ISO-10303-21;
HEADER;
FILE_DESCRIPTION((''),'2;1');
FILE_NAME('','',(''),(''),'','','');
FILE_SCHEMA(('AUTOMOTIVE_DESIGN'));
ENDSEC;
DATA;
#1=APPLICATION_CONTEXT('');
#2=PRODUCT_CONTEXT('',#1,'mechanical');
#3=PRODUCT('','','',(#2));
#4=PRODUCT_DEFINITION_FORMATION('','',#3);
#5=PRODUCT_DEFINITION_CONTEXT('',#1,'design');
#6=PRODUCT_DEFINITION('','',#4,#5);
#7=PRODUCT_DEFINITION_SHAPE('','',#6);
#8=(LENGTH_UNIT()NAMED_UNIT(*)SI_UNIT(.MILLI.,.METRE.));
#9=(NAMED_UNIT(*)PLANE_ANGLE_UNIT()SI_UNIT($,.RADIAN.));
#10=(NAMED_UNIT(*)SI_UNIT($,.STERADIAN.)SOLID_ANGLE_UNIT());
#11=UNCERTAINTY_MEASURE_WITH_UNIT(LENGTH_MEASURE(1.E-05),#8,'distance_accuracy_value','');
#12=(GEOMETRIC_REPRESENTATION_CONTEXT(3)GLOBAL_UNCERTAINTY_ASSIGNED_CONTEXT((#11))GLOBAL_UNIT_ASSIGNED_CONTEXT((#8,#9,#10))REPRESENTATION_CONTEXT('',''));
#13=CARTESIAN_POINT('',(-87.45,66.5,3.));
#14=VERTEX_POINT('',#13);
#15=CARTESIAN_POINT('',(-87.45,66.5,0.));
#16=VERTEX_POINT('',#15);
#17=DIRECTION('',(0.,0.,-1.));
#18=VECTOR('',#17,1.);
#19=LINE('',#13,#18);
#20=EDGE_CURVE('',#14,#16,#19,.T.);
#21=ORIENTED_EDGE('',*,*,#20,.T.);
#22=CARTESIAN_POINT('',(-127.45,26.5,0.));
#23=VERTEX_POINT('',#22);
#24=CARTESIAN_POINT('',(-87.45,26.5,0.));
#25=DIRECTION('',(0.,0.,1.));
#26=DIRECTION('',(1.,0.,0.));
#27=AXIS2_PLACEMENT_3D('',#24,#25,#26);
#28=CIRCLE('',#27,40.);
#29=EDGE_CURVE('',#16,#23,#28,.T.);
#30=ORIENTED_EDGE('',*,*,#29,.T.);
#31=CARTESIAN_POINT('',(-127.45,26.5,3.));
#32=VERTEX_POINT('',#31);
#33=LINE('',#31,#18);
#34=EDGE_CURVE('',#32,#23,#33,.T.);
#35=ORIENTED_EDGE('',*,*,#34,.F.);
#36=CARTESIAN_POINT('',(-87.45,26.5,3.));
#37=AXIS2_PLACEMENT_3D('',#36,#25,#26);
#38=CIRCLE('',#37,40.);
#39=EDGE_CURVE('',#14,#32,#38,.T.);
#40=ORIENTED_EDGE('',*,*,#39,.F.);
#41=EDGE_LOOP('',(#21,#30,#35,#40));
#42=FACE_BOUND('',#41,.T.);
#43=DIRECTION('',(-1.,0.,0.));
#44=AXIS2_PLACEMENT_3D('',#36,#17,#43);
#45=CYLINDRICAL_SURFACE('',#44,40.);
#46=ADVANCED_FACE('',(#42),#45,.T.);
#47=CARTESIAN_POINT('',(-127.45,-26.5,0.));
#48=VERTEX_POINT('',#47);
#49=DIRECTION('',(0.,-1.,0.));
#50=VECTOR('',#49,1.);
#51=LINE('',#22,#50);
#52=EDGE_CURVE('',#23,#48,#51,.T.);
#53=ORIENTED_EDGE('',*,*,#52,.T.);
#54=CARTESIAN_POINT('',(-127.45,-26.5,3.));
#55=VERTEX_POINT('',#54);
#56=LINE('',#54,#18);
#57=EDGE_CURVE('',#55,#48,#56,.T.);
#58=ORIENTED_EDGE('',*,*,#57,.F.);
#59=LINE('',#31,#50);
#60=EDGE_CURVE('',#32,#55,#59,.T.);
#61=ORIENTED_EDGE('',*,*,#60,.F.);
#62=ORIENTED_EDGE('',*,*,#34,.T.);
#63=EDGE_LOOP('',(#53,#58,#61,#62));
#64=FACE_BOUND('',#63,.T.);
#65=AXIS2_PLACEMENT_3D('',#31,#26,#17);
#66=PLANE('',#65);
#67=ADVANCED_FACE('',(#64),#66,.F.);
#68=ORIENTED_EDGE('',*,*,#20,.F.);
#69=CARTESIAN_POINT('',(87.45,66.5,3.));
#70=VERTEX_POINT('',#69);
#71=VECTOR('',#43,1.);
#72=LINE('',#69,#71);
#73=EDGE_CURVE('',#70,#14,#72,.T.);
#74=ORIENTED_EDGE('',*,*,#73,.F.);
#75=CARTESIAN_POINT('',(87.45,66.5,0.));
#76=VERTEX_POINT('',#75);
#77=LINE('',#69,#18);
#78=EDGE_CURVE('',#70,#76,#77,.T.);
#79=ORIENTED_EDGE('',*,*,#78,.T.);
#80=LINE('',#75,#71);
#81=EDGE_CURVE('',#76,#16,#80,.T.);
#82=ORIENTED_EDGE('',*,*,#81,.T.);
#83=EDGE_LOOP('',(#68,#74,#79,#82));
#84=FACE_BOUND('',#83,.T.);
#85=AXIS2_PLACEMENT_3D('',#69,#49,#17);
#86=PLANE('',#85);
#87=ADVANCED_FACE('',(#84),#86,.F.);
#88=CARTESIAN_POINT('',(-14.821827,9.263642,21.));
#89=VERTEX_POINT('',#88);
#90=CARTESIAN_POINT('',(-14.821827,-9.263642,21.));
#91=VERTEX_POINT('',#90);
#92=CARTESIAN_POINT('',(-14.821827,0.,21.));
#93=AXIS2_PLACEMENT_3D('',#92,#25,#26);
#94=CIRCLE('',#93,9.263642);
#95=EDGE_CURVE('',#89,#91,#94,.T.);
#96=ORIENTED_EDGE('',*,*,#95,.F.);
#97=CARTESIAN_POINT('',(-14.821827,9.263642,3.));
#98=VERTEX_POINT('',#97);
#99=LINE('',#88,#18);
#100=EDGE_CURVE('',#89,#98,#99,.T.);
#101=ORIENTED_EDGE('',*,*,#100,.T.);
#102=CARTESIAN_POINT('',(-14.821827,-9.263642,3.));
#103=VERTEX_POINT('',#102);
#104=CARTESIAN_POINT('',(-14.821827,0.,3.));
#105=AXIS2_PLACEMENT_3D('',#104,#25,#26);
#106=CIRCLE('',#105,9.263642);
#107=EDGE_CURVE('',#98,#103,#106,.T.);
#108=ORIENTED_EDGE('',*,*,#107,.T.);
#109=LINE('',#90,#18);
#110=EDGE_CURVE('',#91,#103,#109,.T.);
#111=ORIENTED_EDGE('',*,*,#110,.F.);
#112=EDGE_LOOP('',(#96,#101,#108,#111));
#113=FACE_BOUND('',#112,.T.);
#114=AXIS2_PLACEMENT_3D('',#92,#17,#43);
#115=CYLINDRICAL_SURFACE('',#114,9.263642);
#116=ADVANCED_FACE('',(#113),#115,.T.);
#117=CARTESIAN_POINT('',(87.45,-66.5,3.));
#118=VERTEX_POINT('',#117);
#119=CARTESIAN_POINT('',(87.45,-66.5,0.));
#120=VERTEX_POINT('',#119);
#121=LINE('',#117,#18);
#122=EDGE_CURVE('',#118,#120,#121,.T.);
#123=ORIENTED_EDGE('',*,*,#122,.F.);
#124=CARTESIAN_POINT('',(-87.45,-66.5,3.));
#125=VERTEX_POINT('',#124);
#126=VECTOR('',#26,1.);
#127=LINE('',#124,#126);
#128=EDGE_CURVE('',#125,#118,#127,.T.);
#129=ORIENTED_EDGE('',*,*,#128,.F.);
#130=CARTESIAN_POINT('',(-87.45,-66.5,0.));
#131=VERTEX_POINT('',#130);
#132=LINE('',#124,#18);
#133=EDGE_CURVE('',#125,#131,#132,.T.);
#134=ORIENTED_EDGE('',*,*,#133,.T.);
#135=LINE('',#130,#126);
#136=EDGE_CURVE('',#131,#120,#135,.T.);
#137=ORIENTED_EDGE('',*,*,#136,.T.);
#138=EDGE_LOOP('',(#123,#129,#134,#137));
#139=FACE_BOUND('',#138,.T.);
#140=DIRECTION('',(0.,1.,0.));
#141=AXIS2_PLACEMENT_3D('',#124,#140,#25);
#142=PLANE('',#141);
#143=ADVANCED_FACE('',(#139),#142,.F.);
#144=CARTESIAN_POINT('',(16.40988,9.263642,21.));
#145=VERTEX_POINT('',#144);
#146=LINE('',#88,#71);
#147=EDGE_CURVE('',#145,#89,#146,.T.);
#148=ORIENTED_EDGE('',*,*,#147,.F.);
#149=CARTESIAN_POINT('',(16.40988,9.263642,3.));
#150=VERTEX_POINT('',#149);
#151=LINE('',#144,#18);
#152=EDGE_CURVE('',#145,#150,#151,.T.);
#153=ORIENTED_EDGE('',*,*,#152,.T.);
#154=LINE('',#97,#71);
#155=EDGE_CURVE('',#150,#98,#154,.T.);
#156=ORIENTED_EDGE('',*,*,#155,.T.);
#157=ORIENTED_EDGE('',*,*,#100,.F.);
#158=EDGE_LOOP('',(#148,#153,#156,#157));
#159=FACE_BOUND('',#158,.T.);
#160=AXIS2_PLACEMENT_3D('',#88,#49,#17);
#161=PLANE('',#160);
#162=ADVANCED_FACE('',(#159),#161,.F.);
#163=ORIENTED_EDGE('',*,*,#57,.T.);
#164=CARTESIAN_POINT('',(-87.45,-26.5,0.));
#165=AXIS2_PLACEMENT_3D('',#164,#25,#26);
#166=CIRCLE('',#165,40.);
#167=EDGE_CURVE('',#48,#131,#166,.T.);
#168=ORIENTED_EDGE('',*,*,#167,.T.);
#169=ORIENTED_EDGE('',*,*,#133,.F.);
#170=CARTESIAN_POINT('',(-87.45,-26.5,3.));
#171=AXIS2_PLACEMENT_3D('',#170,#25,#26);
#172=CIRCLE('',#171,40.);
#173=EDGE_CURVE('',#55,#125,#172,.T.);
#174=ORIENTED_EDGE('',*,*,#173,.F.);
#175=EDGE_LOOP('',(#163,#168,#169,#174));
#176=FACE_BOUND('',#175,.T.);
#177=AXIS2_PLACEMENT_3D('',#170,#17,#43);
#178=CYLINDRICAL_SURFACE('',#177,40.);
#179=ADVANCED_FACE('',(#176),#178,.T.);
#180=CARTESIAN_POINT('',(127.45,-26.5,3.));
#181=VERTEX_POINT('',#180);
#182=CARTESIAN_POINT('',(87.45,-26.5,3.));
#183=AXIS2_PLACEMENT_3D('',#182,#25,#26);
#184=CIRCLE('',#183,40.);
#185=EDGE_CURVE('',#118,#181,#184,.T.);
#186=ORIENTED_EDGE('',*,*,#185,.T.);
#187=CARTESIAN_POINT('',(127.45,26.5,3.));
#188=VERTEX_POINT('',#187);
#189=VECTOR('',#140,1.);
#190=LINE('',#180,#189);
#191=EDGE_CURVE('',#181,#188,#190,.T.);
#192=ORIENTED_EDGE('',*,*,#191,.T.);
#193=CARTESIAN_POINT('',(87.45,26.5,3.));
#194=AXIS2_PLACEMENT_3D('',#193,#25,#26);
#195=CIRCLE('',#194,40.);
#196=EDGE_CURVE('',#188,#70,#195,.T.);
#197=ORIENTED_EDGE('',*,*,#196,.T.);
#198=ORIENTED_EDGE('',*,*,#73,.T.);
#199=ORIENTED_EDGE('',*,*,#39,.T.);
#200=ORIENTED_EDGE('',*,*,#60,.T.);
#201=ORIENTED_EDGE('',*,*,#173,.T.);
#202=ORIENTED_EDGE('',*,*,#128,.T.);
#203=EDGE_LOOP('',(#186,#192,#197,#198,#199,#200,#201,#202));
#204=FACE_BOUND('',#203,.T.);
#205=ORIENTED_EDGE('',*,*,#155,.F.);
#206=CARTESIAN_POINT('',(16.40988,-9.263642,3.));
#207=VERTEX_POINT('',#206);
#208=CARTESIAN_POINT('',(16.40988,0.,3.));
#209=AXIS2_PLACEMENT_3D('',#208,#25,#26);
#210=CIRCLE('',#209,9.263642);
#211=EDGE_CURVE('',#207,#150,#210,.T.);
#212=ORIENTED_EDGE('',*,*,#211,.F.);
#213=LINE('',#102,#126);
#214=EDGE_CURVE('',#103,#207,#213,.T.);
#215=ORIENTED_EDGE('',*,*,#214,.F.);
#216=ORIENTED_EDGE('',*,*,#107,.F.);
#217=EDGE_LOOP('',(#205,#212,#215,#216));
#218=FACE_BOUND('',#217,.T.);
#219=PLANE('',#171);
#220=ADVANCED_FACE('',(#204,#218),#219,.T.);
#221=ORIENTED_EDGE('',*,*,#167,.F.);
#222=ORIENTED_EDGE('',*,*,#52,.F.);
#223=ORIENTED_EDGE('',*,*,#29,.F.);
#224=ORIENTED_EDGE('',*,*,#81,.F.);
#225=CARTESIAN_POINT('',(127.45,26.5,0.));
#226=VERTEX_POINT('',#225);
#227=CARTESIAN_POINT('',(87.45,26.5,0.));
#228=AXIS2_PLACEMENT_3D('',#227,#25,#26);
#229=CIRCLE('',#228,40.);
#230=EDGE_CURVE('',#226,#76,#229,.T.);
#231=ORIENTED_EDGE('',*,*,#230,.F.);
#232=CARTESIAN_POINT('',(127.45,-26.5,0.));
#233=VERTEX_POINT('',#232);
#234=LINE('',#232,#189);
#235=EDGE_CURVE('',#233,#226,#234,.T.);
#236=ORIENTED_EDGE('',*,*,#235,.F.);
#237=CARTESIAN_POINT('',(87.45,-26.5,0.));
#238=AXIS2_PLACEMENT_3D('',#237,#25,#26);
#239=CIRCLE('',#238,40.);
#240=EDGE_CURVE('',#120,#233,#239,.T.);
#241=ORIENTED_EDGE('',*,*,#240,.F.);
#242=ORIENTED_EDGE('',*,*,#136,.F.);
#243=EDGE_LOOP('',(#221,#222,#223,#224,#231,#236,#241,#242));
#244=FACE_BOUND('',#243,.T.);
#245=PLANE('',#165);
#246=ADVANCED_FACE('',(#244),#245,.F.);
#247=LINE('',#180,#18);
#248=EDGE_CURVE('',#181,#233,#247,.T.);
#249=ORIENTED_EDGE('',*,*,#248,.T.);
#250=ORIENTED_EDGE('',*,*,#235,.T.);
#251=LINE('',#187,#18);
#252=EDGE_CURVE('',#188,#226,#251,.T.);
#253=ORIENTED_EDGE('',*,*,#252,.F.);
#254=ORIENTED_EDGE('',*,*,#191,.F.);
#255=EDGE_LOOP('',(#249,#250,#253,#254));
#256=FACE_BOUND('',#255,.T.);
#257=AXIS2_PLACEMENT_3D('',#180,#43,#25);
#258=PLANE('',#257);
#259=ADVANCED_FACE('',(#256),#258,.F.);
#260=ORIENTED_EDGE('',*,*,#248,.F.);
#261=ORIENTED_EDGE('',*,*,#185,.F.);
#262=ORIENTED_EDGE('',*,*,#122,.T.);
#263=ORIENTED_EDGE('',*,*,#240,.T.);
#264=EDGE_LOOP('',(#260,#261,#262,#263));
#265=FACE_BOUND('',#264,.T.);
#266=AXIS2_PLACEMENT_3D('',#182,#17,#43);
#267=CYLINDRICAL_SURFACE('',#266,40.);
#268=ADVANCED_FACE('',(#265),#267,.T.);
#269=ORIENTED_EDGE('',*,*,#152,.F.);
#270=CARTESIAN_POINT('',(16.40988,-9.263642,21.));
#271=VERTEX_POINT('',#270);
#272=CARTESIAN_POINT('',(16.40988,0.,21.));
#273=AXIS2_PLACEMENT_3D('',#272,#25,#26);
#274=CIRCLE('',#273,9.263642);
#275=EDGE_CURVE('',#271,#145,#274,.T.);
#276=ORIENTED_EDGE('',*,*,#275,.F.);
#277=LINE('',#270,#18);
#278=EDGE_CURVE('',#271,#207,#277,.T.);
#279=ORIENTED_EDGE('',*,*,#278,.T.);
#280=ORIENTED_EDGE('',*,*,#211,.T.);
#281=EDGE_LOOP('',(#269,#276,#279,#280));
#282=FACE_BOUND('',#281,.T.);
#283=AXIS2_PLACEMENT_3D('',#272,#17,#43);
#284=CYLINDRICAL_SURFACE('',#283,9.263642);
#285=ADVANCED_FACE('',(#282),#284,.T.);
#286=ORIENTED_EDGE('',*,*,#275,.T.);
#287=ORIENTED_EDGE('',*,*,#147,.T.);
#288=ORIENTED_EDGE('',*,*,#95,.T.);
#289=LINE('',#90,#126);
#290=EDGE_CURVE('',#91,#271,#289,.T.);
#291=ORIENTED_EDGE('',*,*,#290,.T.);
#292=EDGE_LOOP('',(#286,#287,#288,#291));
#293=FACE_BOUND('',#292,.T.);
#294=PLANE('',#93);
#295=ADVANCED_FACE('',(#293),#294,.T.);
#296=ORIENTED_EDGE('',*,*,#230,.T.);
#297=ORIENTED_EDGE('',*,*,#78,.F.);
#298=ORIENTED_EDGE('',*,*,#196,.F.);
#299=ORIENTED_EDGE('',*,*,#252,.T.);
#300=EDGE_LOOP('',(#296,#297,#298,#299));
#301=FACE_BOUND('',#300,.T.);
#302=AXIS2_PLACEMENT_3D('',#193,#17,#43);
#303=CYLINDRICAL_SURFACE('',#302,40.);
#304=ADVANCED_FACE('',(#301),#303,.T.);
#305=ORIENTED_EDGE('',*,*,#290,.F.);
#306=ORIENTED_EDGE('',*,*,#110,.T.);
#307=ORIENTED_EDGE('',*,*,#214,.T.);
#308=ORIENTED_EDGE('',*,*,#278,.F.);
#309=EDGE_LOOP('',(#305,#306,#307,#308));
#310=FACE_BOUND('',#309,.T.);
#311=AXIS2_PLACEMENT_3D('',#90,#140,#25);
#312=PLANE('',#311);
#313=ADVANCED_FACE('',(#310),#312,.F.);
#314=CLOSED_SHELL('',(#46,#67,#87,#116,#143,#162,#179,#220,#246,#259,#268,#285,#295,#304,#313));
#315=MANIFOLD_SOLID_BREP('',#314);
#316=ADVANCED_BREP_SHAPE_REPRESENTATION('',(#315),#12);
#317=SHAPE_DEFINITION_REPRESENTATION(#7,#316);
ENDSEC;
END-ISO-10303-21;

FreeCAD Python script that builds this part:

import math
import FreeCAD as App
import Part
import Sketcher

doc = App.newDocument("Part")
body = doc.addObject("PartDesign::Body", "Body")

sketch1 = doc.addObject("Sketcher::SketchObject", "Sketch")
body.addObject(sketch1)
sketch1.AttachmentSupport = (doc.XY_Plane, [""])
sketch1.MapMode = "FlatFace"
sketch1.addGeometry(Part.LineSegment(App.Vector(87.45, 66.5, 0), App.Vector(-87.45, 66.5, 0)), False)
sketch1.addGeometry(Part.ArcOfCircle(Part.Circle(App.Vector(-87.45, 26.5, 0), App.Vector(0, 0, 1), 40), math.radians(90), math.radians(180)), False)
sketch1.addGeometry(Part.LineSegment(App.Vector(-127.45, 26.5, 0), App.Vector(-127.45, -26.5, 0)), False)
sketch1.addGeometry(Part.ArcOfCircle(Part.Circle(App.Vector(-87.45, -26.5, 0), App.Vector(0, 0, 1), 40), math.radians(-180), math.radians(-90)), False)
sketch1.addGeometry(Part.LineSegment(App.Vector(-87.45, -66.5, 0), App.Vector(87.45, -66.5, 0)), False)
sketch1.addGeometry(Part.ArcOfCircle(Part.Circle(App.Vector(87.45, -26.5, 0), App.Vector(0, 0, 1), 40), math.radians(-90), math.radians(0)), False)
sketch1.addGeometry(Part.LineSegment(App.Vector(127.45, -26.5, 0), App.Vector(127.45, 26.5, 0)), False)
sketch1.addGeometry(Part.ArcOfCircle(Part.Circle(App.Vector(87.45, 26.5, 0), App.Vector(0, 0, 1), 40), math.radians(0), math.radians(90)), False)
sketch1.addConstraint(Sketcher.Constraint("Tangent", 0, 2, 1, 1))
sketch1.addConstraint(Sketcher.Constraint("Tangent", 1, 2, 2, 1))
sketch1.addConstraint(Sketcher.Constraint("Tangent", 2, 2, 3, 1))
sketch1.addConstraint(Sketcher.Constraint("Tangent", 3, 2, 4, 1))
sketch1.addConstraint(Sketcher.Constraint("Tangent", 4, 2, 5, 1))
sketch1.addConstraint(Sketcher.Constraint("Tangent", 5, 2, 6, 1))
sketch1.addConstraint(Sketcher.Constraint("Tangent", 6, 2, 7, 1))
sketch1.addConstraint(Sketcher.Constraint("Tangent", 7, 2, 0, 1))
sketch1.addConstraint(Sketcher.Constraint("Horizontal", 0))
sketch1.addConstraint(Sketcher.Constraint("Vertical", 2))
sketch1.addConstraint(Sketcher.Constraint("Horizontal", 4))
sketch1.addConstraint(Sketcher.Constraint("Vertical", 6))
sketch1.addConstraint(Sketcher.Constraint("Equal", 1, 3))
sketch1.addConstraint(Sketcher.Constraint("Equal", 3, 5))
sketch1.addConstraint(Sketcher.Constraint("Equal", 5, 7))
sketch1.addConstraint(Sketcher.Constraint("Symmetric", 1, 3, 5, 3, -1, 1))
sketch1.addConstraint(Sketcher.Constraint("Radius", 1, 40.0))
sketch1.addConstraint(Sketcher.Constraint("DistanceY", 2, 2, 2, 1, 53.0))
sketch1.addConstraint(Sketcher.Constraint("DistanceX", 0, 2, 0, 1, 174.9))
pad1 = doc.addObject("PartDesign::Pad", "Pad")
body.addObject(pad1)
pad1.Profile = sketch1
pad1.Length = 3

sketch2 = doc.addObject("Sketcher::SketchObject", "Sketch001")
body.addObject(sketch2)
sketch2.AttachmentSupport = (doc.XY_Plane, [""])
sketch2.MapMode = "FlatFace"
sketch2.AttachmentOffset = App.Placement(App.Vector(0, 0, 3), App.Rotation())
sketch2.addGeometry(Part.LineSegment(App.Vector(16.40988, 9.263642, 0), App.Vector(-14.821827, 9.263642, 0)), False)
sketch2.addGeometry(Part.ArcOfCircle(Part.Circle(App.Vector(-14.821827, 0, 0), App.Vector(0, 0, 1), 9.263642), math.radians(90), math.radians(270)), False)
sketch2.addGeometry(Part.LineSegment(App.Vector(-14.821827, -9.263642, 0), App.Vector(16.40988, -9.263642, 0)), False)
sketch2.addGeometry(Part.ArcOfCircle(Part.Circle(App.Vector(16.40988, 0, 0), App.Vector(0, 0, 1), 9.263642), math.radians(-90), math.radians(90)), False)
sketch2.addConstraint(Sketcher.Constraint("Tangent", 0, 2, 1, 1))
sketch2.addConstraint(Sketcher.Constraint("Tangent", 1, 2, 2, 1))
sketch2.addConstraint(Sketcher.Constraint("Tangent", 2, 2, 3, 1))
sketch2.addConstraint(Sketcher.Constraint("Tangent", 3, 2, 0, 1))
sketch2.addConstraint(Sketcher.Constraint("Horizontal", 0))
sketch2.addConstraint(Sketcher.Constraint("Horizontal", 2))
sketch2.addConstraint(Sketcher.Constraint("PointOnObject", 1, 3, -1))
sketch2.addConstraint(Sketcher.Constraint("Radius", 1, 9.263642))
sketch2.addConstraint(Sketcher.Constraint("DistanceX", 0, 2, 0, 1, 31.231706))
sketch2.addConstraint(Sketcher.Constraint("DistanceX", -1, 1, 3, 3, 16.40988))
pad2 = doc.addObject("PartDesign::Pad", "Pad001")
body.addObject(pad2)
pad2.Profile = sketch2
pad2.Length = 18

doc.recompute()
